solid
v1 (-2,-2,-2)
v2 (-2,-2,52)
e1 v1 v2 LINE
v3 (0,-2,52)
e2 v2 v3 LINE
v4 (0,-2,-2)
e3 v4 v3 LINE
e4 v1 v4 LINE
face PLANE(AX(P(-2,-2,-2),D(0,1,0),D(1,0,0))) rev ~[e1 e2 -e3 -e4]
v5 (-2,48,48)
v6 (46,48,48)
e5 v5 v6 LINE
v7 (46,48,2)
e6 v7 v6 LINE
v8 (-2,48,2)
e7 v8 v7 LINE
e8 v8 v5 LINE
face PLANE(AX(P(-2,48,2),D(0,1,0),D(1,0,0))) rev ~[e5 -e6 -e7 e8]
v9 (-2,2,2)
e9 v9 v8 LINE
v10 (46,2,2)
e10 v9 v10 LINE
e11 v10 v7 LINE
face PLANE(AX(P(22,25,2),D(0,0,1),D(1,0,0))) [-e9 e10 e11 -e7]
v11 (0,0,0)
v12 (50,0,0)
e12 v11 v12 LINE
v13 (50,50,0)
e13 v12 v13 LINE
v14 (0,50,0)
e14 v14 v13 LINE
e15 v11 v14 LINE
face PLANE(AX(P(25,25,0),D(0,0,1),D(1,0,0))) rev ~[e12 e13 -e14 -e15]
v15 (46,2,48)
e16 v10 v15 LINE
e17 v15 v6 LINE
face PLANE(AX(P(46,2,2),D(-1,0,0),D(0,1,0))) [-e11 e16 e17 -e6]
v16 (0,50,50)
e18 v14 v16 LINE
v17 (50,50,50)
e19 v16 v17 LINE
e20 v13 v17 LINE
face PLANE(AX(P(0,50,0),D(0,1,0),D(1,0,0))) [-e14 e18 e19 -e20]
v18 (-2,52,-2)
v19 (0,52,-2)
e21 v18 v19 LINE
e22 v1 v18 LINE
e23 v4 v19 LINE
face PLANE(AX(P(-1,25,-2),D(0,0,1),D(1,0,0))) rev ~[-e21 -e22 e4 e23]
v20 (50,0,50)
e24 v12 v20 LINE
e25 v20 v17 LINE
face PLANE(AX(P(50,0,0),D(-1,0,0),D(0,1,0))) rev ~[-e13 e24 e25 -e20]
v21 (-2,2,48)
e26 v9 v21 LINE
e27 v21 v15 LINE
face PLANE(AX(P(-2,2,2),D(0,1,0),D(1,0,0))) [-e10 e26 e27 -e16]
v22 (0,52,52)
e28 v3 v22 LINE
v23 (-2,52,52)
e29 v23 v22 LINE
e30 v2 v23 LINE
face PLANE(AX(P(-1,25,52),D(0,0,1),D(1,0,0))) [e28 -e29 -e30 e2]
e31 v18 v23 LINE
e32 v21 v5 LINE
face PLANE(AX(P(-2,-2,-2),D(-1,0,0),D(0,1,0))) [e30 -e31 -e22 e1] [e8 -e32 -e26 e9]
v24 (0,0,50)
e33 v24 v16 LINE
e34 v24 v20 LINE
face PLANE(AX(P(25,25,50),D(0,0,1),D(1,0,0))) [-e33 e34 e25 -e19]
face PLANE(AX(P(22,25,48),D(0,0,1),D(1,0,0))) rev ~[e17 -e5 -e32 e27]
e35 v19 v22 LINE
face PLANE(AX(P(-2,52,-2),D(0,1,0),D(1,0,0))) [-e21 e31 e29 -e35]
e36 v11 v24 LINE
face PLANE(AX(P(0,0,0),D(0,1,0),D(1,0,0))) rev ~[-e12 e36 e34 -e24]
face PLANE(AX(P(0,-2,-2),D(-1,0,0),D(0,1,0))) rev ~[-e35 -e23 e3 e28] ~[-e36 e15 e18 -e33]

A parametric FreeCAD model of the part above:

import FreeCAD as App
import Part
import Sketcher


def add_polygon(sketch, points):
    """Adds a closed chain of lines whose ends are joined by coincident constraints."""
    first, n = sketch.GeometryCount, len(points)
    for a, b in zip(points, points[1:] + points[:1]):
        sketch.addGeometry(Part.LineSegment(App.Vector(*a, 0), App.Vector(*b, 0)), False)
    for i in range(n):
        sketch.addConstraint(Sketcher.Constraint("Coincident", first + i, 2, first + (i + 1) % n, 1))

doc = App.newDocument("Part")
body = doc.addObject("PartDesign::Body", "Body")

sketch1 = body.newObject("Sketcher::SketchObject", "Sketch")
sketch1.AttachmentSupport = (doc.getObject("XY_Plane"), [""])
sketch1.MapMode = "FlatFace"
sketch1.AttachmentOffset = App.Placement(App.Vector(0, 0, 2), App.Rotation())
add_polygon(sketch1, [(-2, 48), (-2, 2), (46, 2), (46, 48)])
sketch1.addConstraint(Sketcher.Constraint("Vertical", 0))
sketch1.addConstraint(Sketcher.Constraint("Horizontal", 1))
sketch1.addConstraint(Sketcher.Constraint("Vertical", 2))
sketch1.addConstraint(Sketcher.Constraint("Horizontal", 3))
sketch1.addConstraint(Sketcher.Constraint("DistanceX", 1, 1, 1, 2, 48.0))
sketch1.addConstraint(Sketcher.Constraint("DistanceY", 0, 2, 0, 1, 46.0))
sketch1.addConstraint(Sketcher.Constraint("DistanceX", 0, 2, -1, 1, 2.0))
sketch1.addConstraint(Sketcher.Constraint("DistanceY", -1, 1, 0, 2, 2.0))
pad1 = body.newObject("PartDesign::Pad", "Pad")
pad1.Profile = sketch1
pad1.Length = 46
body2 = doc.addObject("PartDesign::Body", "Body001")

sketch2 = body2.newObject("Sketcher::SketchObject", "Sketch001")
sketch2.AttachmentSupport = (doc.getObject("XY_Plane001"), [""])
sketch2.MapMode = "FlatFace"
add_polygon(sketch2, [(0, 50), (0, 0), (50, 0), (50, 50)])
sketch2.addConstraint(Sketcher.Constraint("Vertical", 0))
sketch2.addConstraint(Sketcher.Constraint("Horizontal", 1))
sketch2.addConstraint(Sketcher.Constraint("Vertical", 2))
sketch2.addConstraint(Sketcher.Constraint("Horizontal", 3))
sketch2.addConstraint(Sketcher.Constraint("Coincident", 0, 2, -1, 1))
sketch2.addConstraint(Sketcher.Constraint("Equal", 3, 0))
sketch2.addConstraint(Sketcher.Constraint("DistanceX", 1, 1, 1, 2, 50.0))
pad2 = body2.newObject("PartDesign::Pad", "Pad001")
pad2.Profile = sketch2
pad2.Length = 50
body3 = doc.addObject("PartDesign::Body", "Body002")

sketch3 = body3.newObject("Sketcher::SketchObject", "Sketch002")
sketch3.AttachmentSupport = (doc.getObject("XY_Plane002"), [""])
sketch3.MapMode = "FlatFace"
sketch3.AttachmentOffset = App.Placement(App.Vector(0, 0, -2), App.Rotation())
add_polygon(sketch3, [(-2, 52), (-2, -2), (0, -2), (0, 52)])
sketch3.addConstraint(Sketcher.Constraint("Vertical", 0))
sketch3.addConstraint(Sketcher.Constraint("Horizontal", 1))
sketch3.addConstraint(Sketcher.Constraint("Vertical", 2))
sketch3.addConstraint(Sketcher.Constraint("Horizontal", 3))
sketch3.addConstraint(Sketcher.Constraint("PointOnObject", 1, 2, -2))
sketch3.addConstraint(Sketcher.Constraint("DistanceX", 1, 1, 1, 2, 2.0))
sketch3.addConstraint(Sketcher.Constraint("DistanceY", 0, 2, 0, 1, 54.0))
sketch3.addConstraint(Sketcher.Constraint("DistanceY", 0, 2, -1, 1, 2.0))
pad3 = body3.newObject("PartDesign::Pad", "Pad002")
pad3.Profile = sketch3
pad3.Length = 54
doc.recompute()

boolean = body3.newObject("PartDesign::Boolean", "Boolean")
boolean.Type = "Fuse"
boolean.addObjects([body2])
doc.recompute()

boolean2 = body3.newObject("PartDesign::Boolean", "Boolean001")
boolean2.Type = "Cut"
boolean2.addObjects([body])

doc.recompute()
